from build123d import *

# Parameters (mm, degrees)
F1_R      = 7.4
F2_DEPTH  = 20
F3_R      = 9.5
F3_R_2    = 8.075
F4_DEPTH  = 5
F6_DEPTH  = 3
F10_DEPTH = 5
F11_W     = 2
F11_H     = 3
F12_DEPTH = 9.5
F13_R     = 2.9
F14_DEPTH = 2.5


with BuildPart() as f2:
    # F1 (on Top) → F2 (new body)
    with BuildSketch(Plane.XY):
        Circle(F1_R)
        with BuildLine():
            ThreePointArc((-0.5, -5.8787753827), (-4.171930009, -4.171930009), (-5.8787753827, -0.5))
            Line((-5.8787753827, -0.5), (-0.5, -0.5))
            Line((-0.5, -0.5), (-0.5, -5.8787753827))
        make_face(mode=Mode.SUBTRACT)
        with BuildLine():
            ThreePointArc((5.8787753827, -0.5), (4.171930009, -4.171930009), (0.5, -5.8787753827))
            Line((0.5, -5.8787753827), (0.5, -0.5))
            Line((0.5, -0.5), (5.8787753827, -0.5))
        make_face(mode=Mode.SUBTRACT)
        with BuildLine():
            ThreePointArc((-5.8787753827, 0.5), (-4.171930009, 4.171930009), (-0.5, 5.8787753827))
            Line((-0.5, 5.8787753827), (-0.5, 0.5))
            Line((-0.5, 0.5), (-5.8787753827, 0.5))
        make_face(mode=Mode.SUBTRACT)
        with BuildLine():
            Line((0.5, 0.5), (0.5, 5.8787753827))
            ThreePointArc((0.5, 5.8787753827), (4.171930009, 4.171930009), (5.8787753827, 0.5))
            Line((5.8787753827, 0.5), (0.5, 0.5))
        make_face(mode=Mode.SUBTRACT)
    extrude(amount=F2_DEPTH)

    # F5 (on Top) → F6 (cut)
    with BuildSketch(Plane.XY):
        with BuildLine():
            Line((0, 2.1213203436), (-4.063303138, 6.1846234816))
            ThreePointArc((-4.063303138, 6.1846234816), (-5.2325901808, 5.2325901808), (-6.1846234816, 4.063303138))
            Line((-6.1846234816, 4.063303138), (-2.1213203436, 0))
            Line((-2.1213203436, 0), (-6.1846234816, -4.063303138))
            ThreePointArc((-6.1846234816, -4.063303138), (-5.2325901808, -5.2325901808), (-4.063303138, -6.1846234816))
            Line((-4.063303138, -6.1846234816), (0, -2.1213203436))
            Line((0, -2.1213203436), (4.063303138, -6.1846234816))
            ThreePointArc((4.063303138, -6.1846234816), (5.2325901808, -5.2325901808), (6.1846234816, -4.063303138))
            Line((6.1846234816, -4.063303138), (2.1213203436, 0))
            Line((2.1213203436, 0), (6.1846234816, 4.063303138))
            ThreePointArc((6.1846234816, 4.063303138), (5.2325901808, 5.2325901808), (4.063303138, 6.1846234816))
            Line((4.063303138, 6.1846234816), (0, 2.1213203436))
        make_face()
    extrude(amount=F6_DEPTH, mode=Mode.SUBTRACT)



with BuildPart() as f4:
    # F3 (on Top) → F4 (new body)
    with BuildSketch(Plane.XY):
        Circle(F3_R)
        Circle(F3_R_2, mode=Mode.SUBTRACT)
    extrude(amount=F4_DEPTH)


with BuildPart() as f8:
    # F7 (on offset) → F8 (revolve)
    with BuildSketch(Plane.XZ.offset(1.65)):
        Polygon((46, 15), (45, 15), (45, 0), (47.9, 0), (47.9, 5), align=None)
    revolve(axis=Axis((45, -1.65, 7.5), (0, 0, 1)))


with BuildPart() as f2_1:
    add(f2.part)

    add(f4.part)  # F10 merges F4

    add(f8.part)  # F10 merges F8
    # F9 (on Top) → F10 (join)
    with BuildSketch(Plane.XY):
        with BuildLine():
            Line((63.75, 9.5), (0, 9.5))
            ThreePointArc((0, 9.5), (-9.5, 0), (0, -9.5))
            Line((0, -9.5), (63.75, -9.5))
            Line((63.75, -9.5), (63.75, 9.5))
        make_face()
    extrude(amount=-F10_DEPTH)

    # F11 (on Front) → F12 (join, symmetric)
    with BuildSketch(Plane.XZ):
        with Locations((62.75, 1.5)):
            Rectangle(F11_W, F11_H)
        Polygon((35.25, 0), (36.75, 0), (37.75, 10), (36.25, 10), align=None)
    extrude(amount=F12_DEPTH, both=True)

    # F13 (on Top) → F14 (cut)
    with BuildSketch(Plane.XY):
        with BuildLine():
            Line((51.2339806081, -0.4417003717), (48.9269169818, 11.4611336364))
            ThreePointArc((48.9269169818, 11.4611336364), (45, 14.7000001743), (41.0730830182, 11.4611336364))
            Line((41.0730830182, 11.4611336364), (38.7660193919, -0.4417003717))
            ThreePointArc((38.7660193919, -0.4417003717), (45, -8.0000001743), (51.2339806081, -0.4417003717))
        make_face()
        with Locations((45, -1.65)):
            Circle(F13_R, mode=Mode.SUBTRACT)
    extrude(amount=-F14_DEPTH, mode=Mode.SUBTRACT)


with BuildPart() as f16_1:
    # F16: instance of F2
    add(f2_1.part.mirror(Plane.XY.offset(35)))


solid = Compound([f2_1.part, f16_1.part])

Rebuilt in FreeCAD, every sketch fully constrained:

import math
import FreeCAD as App
import Part
import Sketcher
from FreeCAD import Vector
Q = App.Units.Quantity


def add_polygon(sketch, points):
    """Adds a closed chain of lines whose ends are joined by coincident constraints."""
    first, n = sketch.GeometryCount, len(points)
    for a, b in zip(points, points[1:] + points[:1]):
        sketch.addGeometry(Part.LineSegment(App.Vector(*a, 0), App.Vector(*b, 0)), False)
    for i in range(n):
        sketch.addConstraint(Sketcher.Constraint("Coincident", first + i, 2, first + (i + 1) % n, 1))

doc = App.newDocument("Part")
body = doc.addObject("PartDesign::Body", "Body")

sketch1 = body.newObject("Sketcher::SketchObject", "Sketch")
sketch1.AttachmentSupport = (doc.getObject("XY_Plane"), [""])
sketch1.MapMode = "FlatFace"
sketch1.addGeometry([
    Part.Circle(Vector(0, 0, 0), Vector(0, 0, 1), 7.4),
    Part.LineSegment(Vector(-0.5, -0.5, 0), Vector(-0.5, -5.878775, 0)),
    Part.ArcOfCircle(Part.Circle(Vector(0, 0, 0), Vector(0, 0, 1), 5.9), math.radians(-175.138595), math.radians(-94.861405)),
    Part.LineSegment(Vector(-5.878775, -0.5, 0), Vector(-0.5, -0.5, 0)),
    Part.LineSegment(Vector(0.5, -0.5, 0), Vector(5.878775, -0.5, 0)),
    Part.ArcOfCircle(Part.Circle(Vector(0, 0, 0), Vector(0, 0, 1), 5.9), math.radians(-85.138595), math.radians(-4.861405)),
    Part.LineSegment(Vector(0.5, -5.878775, 0), Vector(0.5, -0.5, 0)),
    Part.LineSegment(Vector(-0.5, 0.5, 0), Vector(-5.878775, 0.5, 0)),
    Part.ArcOfCircle(Part.Circle(Vector(0, 0, 0), Vector(0, 0, 1), 5.9), math.radians(94.861405), math.radians(175.138595)),
    Part.LineSegment(Vector(-0.5, 5.878775, 0), Vector(-0.5, 0.5, 0)),
    Part.LineSegment(Vector(5.878775, 0.5, 0), Vector(0.5, 0.5, 0)),
    Part.LineSegment(Vector(0.5, 0.5, 0), Vector(0.5, 5.878775, 0)),
    Part.ArcOfCircle(Part.Circle(Vector(0, 0, 0), Vector(0, 0, 1), 5.9), math.radians(4.861405), math.radians(85.138595)),
], False)
sketch1.addConstraint([
    Sketcher.Constraint("Coincident", 1, 2, 2, 2),
    Sketcher.Constraint("Coincident", 2, 1, 3, 1),
    Sketcher.Constraint("Coincident", 3, 2, 1, 1),
    Sketcher.Constraint("Coincident", 4, 2, 5, 2),
    Sketcher.Constraint("Coincident", 5, 1, 6, 1),
    Sketcher.Constraint("Coincident", 6, 2, 4, 1),
    Sketcher.Constraint("Coincident", 7, 2, 8, 2),
    Sketcher.Constraint("Coincident", 8, 1, 9, 1),
    Sketcher.Constraint("Coincident", 9, 2, 7, 1),
    Sketcher.Constraint("Coincident", 10, 2, 11, 1),
    Sketcher.Constraint("Coincident", 11, 2, 12, 2),
    Sketcher.Constraint("Coincident", 12, 1, 10, 1),
    Sketcher.Constraint("Vertical", 1),
    Sketcher.Constraint("Horizontal", 3),
    Sketcher.Constraint("Horizontal", 4),
    Sketcher.Constraint("Vertical", 6),
    Sketcher.Constraint("Horizontal", 7),
    Sketcher.Constraint("Vertical", 9),
    Sketcher.Constraint("Horizontal", 10),
    Sketcher.Constraint("Vertical", 11),
    Sketcher.Constraint("Coincident", 0, 3, -1, 1),
    Sketcher.Constraint("Coincident", 2, 3, -1, 1),
    Sketcher.Constraint("Coincident", 5, 3, -1, 1),
    Sketcher.Constraint("Coincident", 8, 3, -1, 1),
    Sketcher.Constraint("Coincident", 12, 3, -1, 1),
    Sketcher.Constraint("Equal", 2, 5),
    Sketcher.Constraint("Equal", 5, 8),
    Sketcher.Constraint("Equal", 8, 12),
    Sketcher.Constraint("Symmetric", 6, 2, 9, 2, -1, 1),
    Sketcher.Constraint("Symmetric", 3, 2, 10, 2, -1, 1),
    Sketcher.Constraint("Symmetric", 3, 2, 6, 2, -2),
    Sketcher.Constraint("Equal", 10, 1),
    Sketcher.Constraint("Diameter", 0, Q("14.8 mm")),
    Sketcher.Constraint("Radius", 2, Q("5.9 mm")),
    Sketcher.Constraint("DistanceX", 1, 2, 5, 1, Q("1 mm")),
])
pad1 = body.newObject("PartDesign::Pad", "Pad")
pad1.Profile = sketch1
pad1.Length = 20

sketch2 = body.newObject("Sketcher::SketchObject", "Sketch001")
sketch2.AttachmentSupport = (doc.getObject("XY_Plane"), [""])
sketch2.MapMode = "FlatFace"
sketch2.addGeometry([
    Part.LineSegment(Vector(0, 2.1, 0), Vector(-4.1, 6.2, 0)),
    Part.ArcOfCircle(Part.Circle(Vector(0, 0, 0), Vector(0, 0, 1), 7.4), math.radians(123), math.radians(147)),
    Part.LineSegment(Vector(-6.2, 4.1, 0), Vector(-2.1, 0, 0)),
    Part.LineSegment(Vector(-2.1, 0, 0), Vector(-6.2, -4.1, 0)),
    Part.ArcOfCircle(Part.Circle(Vector(0, 0, 0), Vector(0, 0, 1), 7.4), math.radians(-147), math.radians(-123)),
    Part.LineSegment(Vector(-4.1, -6.2, 0), Vector(0, -2.1, 0)),
    Part.LineSegment(Vector(0, -2.1, 0), Vector(4.1, -6.2, 0)),
    Part.ArcOfCircle(Part.Circle(Vector(0, 0, 0), Vector(0, 0, 1), 7.4), math.radians(-57), math.radians(-33)),
    Part.LineSegment(Vector(6.2, -4.1, 0), Vector(2.1, 0, 0)),
    Part.LineSegment(Vector(2.1, 0, 0), Vector(6.2, 4.1, 0)),
    Part.ArcOfCircle(Part.Circle(Vector(0, 0, 0), Vector(0, 0, 1), 7.4), math.radians(33), math.radians(57)),
    Part.LineSegment(Vector(4.1, 6.2, 0), Vector(0, 2.1, 0)),
], False)
sketch2.addConstraint([
    Sketcher.Constraint("Coincident", 0, 2, 1, 1),
    Sketcher.Constraint("Coincident", 1, 2, 2, 1),
    Sketcher.Constraint("Coincident", 2, 2, 3, 1),
    Sketcher.Constraint("Coincident", 3, 2, 4, 1),
    Sketcher.Constraint("Coincident", 4, 2, 5, 1),
    Sketcher.Constraint("Coincident", 5, 2, 6, 1),
    Sketcher.Constraint("Coincident", 6, 2, 7, 1),
    Sketcher.Constraint("Coincident", 7, 2, 8, 1),
    Sketcher.Constraint("Coincident", 8, 2, 9, 1),
    Sketcher.Constraint("Coincident", 9, 2, 10, 1),
    Sketcher.Constraint("Coincident", 10, 2, 11, 1),
    Sketcher.Constraint("Coincident", 11, 2, 0, 1),
    Sketcher.Constraint("Coincident", 1, 3, -1, 1),
    Sketcher.Constraint("Coincident", 4, 3, -1, 1),
    Sketcher.Constraint("Coincident", 7, 3, -1, 1),
    Sketcher.Constraint("Coincident", 10, 3, -1, 1),
    Sketcher.Constraint("Equal", 1, 4),
    Sketcher.Constraint("Equal", 4, 7),
    Sketcher.Constraint("Equal", 7, 10),
    Sketcher.Constraint("Symmetric", 2, 2, 8, 2, -1, 1),
    Sketcher.Constraint("Symmetric", 5, 2, 11, 2, -1, 1),
    Sketcher.Constraint("PointOnObject", 2, 2, -1),
    Sketcher.Constraint("PointOnObject", 5, 2, -2),
    Sketcher.Constraint("Parallel", 0, 2),
    Sketcher.Constraint("Perpendicular", 2, 3),
    Sketcher.Constraint("Parallel", 3, 5),
    Sketcher.Constraint("Perpendicular", 5, 6),
    Sketcher.Constraint("Parallel", 6, 8),
    Sketcher.Constraint("Perpendicular", 8, 9),
    Sketcher.Constraint("Parallel", 9, 11),
    Sketcher.Constraint("Horizontal", 4, 2, 6, 2),
    Sketcher.Constraint("Equal", 0, 2),
    Sketcher.Constraint("Radius", 1, Q("7.4 mm")),
    Sketcher.Constraint("Distance", 0, Q("5.746378 mm")),
])
pocket1 = body.newObject("PartDesign::Pocket", "Pocket")
pocket1.Profile = sketch2
pocket1.Length = 3
pocket1.Reversed = True
body2 = doc.addObject("PartDesign::Body", "Body001")

sketch3 = body2.newObject("Sketcher::SketchObject", "Sketch002")
sketch3.AttachmentSupport = (doc.getObject("XY_Plane001"), [""])
sketch3.MapMode = "FlatFace"
sketch3.addGeometry([
    Part.Circle(Vector(0, 0, 0), Vector(0, 0, 1), 10),
    Part.Circle(Vector(0, 0, 0), Vector(0, 0, 1), 8),
], False)
sketch3.addConstraint([
    Sketcher.Constraint("Coincident", 0, 3, -1, 1),
    Sketcher.Constraint("Coincident", 1, 3, -1, 1),
    Sketcher.Constraint("Diameter", 0, Q("19 mm")),
    Sketcher.Constraint("Diameter", 1, Q("16.15 mm")),
])
pad2 = body2.newObject("PartDesign::Pad", "Pad001")
pad2.Profile = sketch3
pad2.Length = 5
body3 = doc.addObject("PartDesign::Body", "Body002")

sketch4 = body3.newObject("Sketcher::SketchObject", "Sketch003")
sketch4.AttachmentSupport = (doc.getObject("XZ_Plane002"), [""])
sketch4.MapMode = "FlatFace"
sketch4.AttachmentOffset = App.Placement(Vector(0, 0, 1.65), App.Rotation())
add_polygon(sketch4, [(46, 15), (45, 15), (45, 0), (47.9, 0), (47.9, 5)])
sketch4.addGeometry(Part.LineSegment(Vector(45, 0, 0), Vector(45, 15, 0)), True)
sketch4.addConstraint([
    Sketcher.Constraint("Horizontal", 0),
    Sketcher.Constraint("Vertical", 1),
    Sketcher.Constraint("Horizontal", 2),
    Sketcher.Constraint("Vertical", 3),
    Sketcher.Constraint("Vertical", 5),
    Sketcher.Constraint("Coincident", 5, 1, 1, 2),
    Sketcher.Constraint("PointOnObject", 1, 2, -1),
    Sketcher.Constraint("Horizontal", 4, 2, 5, 2),
    Sketcher.Constraint("DistanceX", 0, 2, 0, 1, Q("1 mm")),
    Sketcher.Constraint("DistanceY", 1, 2, 1, 1, Q("15 mm")),
    Sketcher.Constraint("DistanceY", 3, 1, 3, 2, Q("5 mm")),
    Sketcher.Constraint("DistanceX", 2, 1, 2, 2, Q("2.9 mm")),
    Sketcher.Constraint("DistanceX", -1, 1, 0, 2, Q("45 mm")),
])
revolution = body3.newObject("PartDesign::Revolution", "Revolution")
revolution.Profile = sketch4
revolution.ReferenceAxis = (sketch4, ["Axis0"])
revolution.Angle = 360
body.AllowCompound = True
doc.recompute()

boolean = body.newObject("PartDesign::Boolean", "Boolean")
boolean.Type = "Fuse"
boolean.addObjects([body2])
doc.recompute()

boolean2 = body.newObject("PartDesign::Boolean", "Boolean001")
boolean2.Type = "Fuse"
boolean2.addObjects([body3])

sketch5 = body.newObject("Sketcher::SketchObject", "Sketch004")
sketch5.AttachmentSupport = (doc.getObject("XY_Plane"), [""])
sketch5.MapMode = "FlatFace"
sketch5.addGeometry([
    Part.LineSegment(Vector(64, 10, 0), Vector(0, 10, 0)),
    Part.ArcOfCircle(Part.Circle(Vector(0, 0, 0), Vector(0, 0, 1), 10), math.radians(90), math.radians(270)),
    Part.LineSegment(Vector(0, -10, 0), Vector(64, -10, 0)),
    Part.LineSegment(Vector(64, -10, 0), Vector(64, 10, 0)),
], False)
sketch5.addConstraint([
    Sketcher.Constraint("Tangent", 0, 2, 1, 1),
    Sketcher.Constraint("Tangent", 1, 2, 2, 1),
    Sketcher.Constraint("Coincident", 2, 2, 3, 1),
    Sketcher.Constraint("Coincident", 3, 2, 0, 1),
    Sketcher.Constraint("Horizontal", 0),
    Sketcher.Constraint("Horizontal", 2),
    Sketcher.Constraint("Vertical", 3),
    Sketcher.Constraint("Coincident", 1, 3, -1, 1),
    Sketcher.Constraint("Radius", 1, Q("9.5 mm")),
    Sketcher.Constraint("DistanceX", 0, 2, 0, 1, Q("63.75 mm")),
])
pad3 = body.newObject("PartDesign::Pad", "Pad002")
pad3.Profile = sketch5
pad3.Length = 5
pad3.Reversed = True

sketch6 = body.newObject("Sketcher::SketchObject", "Sketch005")
sketch6.AttachmentSupport = (doc.getObject("XZ_Plane"), [""])
sketch6.MapMode = "FlatFace"
add_polygon(sketch6, [(61.8, 3), (61.8, 0), (63.8, 0), (63.8, 3)])
add_polygon(sketch6, [(35.2, 0), (36.8, 0), (37.8, 10), (36.2, 10)])
sketch6.addConstraint([
    Sketcher.Constraint("Vertical", 0),
    Sketcher.Constraint("Horizontal", 1),
    Sketcher.Constraint("Vertical", 2),
    Sketcher.Constraint("Horizontal", 3),
    Sketcher.Constraint("Horizontal", 4),
    Sketcher.Constraint("Horizontal", 6),
    Sketcher.Constraint("PointOnObject", 0, 2, -1),
    Sketcher.Constraint("PointOnObject", 4, 2, -1),
    Sketcher.Constraint("Parallel", 5, 7),
    Sketcher.Constraint("DistanceX", 1, 1, 1, 2, Q("2 mm")),
    Sketcher.Constraint("DistanceY", 0, 2, 0, 1, Q("3 mm")),
    Sketcher.Constraint("DistanceX", 4, 1, 4, 2, Q("1.5 mm")),
    Sketcher.Constraint("DistanceY", -1, 1, 5, 2, Q("10 mm")),
    Sketcher.Constraint("DistanceX", 4, 2, 0, 2, Q("25 mm")),
    Sketcher.Constraint("DistanceX", 4, 2, 5, 2, Q("1 mm")),
    Sketcher.Constraint("DistanceX", -1, 1, 0, 2, Q("61.75 mm")),
])
pad4 = body.newObject("PartDesign::Pad", "Pad003")
pad4.Profile = sketch6
pad4.Length = 19
pad4.Midplane = True

sketch7 = body.newObject("Sketcher::SketchObject", "Sketch006")
sketch7.AttachmentSupport = (doc.getObject("XY_Plane"), [""])
sketch7.MapMode = "FlatFace"
sketch7.addGeometry([
    Part.LineSegment(Vector(51.2, -0.4, 0), Vector(48.9, 11.5, 0)),
    Part.ArcOfCircle(Part.Circle(Vector(45, 10.7, 0), Vector(0, 0, 1), 4), math.radians(11), math.radians(169)),
    Part.LineSegment(Vector(41.1, 11.5, 0), Vector(38.8, -0.4, 0)),
    Part.ArcOfCircle(Part.Circle(Vector(45, -1.6, 0), Vector(0, 0, 1), 6.4), math.radians(169), math.radians(371)),
    Part.Circle(Vector(45, -1.6, 0), Vector(0, 0, 1), 2.9),
], False)
sketch7.addConstraint([
    Sketcher.Constraint("Tangent", 0, 2, 1, 1),
    Sketcher.Constraint("Tangent", 1, 2, 2, 1),
    Sketcher.Constraint("Tangent", 2, 2, 3, 1),
    Sketcher.Constraint("Tangent", 3, 2, 0, 1),
    Sketcher.Constraint("Coincident", 4, 3, 3, 3),
    Sketcher.Constraint("Horizontal", 0, 2, 1, 2),
    Sketcher.Constraint("Radius", 1, Q("4 mm")),
    Sketcher.Constraint("Diameter", 4, Q("5.8 mm")),
    Sketcher.Constraint("Radius", 3, Q("6.35 mm")),
    Sketcher.Constraint("DistanceX", -1, 1, 1, 3, Q("45 mm")),
    Sketcher.Constraint("DistanceY", -1, 1, 1, 3, Q("10.7 mm")),
    Sketcher.Constraint("DistanceY", 3, 3, -1, 1, Q("1.65 mm")),
])
pocket2 = body.newObject("PartDesign::Pocket", "Pocket001")
pocket2.Profile = sketch7
pocket2.Length = 2.5
body4 = doc.addObject("PartDesign::Body", "Body003")
doc.recompute()

mirroring = doc.addObject("Part::Mirroring", "Mirroring")
mirroring.Source = body
mirroring.Base = Vector(0, 0, 35)
mirroring.Normal = Vector(0, 0, 1)
body4.BaseFeature = mirroring
doc.recompute()
mirroring.Visibility = False

doc.recompute()
